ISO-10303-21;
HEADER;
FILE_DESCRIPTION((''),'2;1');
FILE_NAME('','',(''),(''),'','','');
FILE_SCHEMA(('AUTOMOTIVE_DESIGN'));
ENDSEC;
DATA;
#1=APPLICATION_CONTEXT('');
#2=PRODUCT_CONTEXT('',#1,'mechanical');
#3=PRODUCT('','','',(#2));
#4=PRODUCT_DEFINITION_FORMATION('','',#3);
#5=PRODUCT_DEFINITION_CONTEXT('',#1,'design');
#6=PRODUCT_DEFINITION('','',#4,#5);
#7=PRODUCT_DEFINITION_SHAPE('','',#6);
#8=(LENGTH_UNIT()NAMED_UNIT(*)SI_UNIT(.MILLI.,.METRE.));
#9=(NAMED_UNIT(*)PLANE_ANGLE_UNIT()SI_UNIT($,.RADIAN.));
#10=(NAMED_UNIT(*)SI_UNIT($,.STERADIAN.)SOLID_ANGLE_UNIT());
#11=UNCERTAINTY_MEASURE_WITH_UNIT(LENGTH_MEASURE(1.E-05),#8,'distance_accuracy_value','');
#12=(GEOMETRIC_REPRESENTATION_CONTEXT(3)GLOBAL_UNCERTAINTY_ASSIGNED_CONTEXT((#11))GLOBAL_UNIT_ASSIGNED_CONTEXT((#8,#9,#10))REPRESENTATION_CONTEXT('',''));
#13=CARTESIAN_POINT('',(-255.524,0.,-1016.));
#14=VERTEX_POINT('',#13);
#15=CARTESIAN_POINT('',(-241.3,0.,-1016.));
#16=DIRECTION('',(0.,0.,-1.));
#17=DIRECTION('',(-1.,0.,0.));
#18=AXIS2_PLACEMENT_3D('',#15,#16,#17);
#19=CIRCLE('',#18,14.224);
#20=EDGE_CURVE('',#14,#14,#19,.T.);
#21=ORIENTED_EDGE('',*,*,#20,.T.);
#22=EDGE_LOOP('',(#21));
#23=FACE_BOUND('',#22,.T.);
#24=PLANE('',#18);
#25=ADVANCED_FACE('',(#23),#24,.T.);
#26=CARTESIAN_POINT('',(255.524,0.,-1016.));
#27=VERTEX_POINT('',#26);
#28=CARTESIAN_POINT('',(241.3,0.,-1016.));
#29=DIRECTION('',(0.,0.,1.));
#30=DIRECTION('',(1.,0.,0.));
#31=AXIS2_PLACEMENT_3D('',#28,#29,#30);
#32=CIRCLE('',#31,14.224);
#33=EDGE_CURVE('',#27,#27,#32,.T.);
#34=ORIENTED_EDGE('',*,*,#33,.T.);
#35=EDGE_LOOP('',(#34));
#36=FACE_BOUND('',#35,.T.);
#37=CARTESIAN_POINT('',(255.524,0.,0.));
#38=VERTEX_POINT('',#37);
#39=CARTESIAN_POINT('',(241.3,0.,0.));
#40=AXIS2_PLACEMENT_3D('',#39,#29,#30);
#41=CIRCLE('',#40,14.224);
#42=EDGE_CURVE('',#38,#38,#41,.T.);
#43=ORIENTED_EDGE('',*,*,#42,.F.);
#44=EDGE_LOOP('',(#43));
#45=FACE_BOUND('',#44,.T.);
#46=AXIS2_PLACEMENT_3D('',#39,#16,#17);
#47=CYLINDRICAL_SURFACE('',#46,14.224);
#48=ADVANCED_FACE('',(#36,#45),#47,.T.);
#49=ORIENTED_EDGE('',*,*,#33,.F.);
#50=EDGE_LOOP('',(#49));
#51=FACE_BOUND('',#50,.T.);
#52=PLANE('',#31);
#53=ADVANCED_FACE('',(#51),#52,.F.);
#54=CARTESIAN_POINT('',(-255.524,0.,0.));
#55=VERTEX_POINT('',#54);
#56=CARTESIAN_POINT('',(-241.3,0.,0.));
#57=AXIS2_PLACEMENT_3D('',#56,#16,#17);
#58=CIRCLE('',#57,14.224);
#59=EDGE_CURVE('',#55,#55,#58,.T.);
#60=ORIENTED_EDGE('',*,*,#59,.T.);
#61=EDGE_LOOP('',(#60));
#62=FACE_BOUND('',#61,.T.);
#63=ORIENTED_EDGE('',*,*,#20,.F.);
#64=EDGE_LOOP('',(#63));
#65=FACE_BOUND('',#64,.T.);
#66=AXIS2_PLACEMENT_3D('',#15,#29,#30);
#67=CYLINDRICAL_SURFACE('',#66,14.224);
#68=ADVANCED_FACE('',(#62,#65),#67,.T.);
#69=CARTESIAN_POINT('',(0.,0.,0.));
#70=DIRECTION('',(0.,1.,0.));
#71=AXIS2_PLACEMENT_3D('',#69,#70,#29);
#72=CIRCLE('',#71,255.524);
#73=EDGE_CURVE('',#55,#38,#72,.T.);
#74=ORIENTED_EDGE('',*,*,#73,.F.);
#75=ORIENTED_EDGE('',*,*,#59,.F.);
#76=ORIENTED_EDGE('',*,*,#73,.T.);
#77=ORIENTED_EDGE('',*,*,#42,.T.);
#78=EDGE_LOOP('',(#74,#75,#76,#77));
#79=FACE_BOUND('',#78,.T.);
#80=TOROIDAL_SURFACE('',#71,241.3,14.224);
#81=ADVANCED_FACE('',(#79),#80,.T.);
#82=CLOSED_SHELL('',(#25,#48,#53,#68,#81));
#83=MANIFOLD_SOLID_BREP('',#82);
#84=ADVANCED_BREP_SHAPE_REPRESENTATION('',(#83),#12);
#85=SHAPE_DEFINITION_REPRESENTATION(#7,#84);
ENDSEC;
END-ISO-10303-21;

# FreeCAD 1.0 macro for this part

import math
import FreeCAD as App
import Part
import Sketcher

V = App.Vector
Q = App.Units.Quantity

doc = App.newDocument("Part")
params = doc.addObject("Spreadsheet::Sheet", "Params")
for row, (alias, value) in enumerate([
    ("sketch1_diameter", "1.12 in"),
    ("sketch2_radius", "9.5 in"),
    ("sketch2_height", "40 in"),
], start=1):
    params.set(f"A{row}", alias)
    params.set(f"B{row}", "=" + value)
    params.setAlias(f"B{row}", alias)

body = doc.addObject("PartDesign::Body", "Body")

# Sketch on XY plane
sketch1 = body.newObject("Sketcher::SketchObject", "Sketch")
sketch1.AttachmentSupport = (doc.getObject("XY_Plane"), [""])
sketch1.MapMode = "FlatFace"
sketch1.AttachmentOffset = App.Placement(V(0, 0, -40 * 25.4), App.Rotation())
sketch1.addGeometry(Part.Circle(V(-241.3, 0, 0), V(0, 0, 1), 14.224), False)
sketch1.addConstraint([
    Sketcher.Constraint("PointOnObject", 0, 3, -1),
    Sketcher.Constraint("Diameter", 0, Q("1.12 in")),
    Sketcher.Constraint("DistanceX", 0, 3, -1, 1, Q("9.5 in")),
])
sketch1.setExpression("Constraints[1]", "Params.sketch1_diameter")

# Sketch on XZ plane
sketch2 = body.newObject("Sketcher::SketchObject", "Sketch001")
sketch2.AttachmentSupport = (doc.getObject("XZ_Plane"), [""])
sketch2.MapMode = "FlatFace"
sketch2.addGeometry([
    Part.LineSegment(V(-241.3, -1016, 0), V(-241.3, 0, 0)),
    Part.ArcOfCircle(Part.Circle(V(0, 0, 0), V(0, 0, 1), 241.3), math.radians(0), math.radians(180)),
    Part.LineSegment(V(241.3, 0, 0), V(241.3, -1016, 0)),
], False)
sketch2.addConstraint([
    Sketcher.Constraint("Tangent", 0, 2, 1, 2),
    Sketcher.Constraint("Tangent", 1, 1, 2, 1),
    Sketcher.Constraint("Vertical", 0),
    Sketcher.Constraint("Vertical", 2),
    Sketcher.Constraint("Coincident", 1, 3, -1, 1),
    Sketcher.Constraint("Horizontal", 0, 1, 2, 2),
    Sketcher.Constraint("Radius", 1, Q("9.5 in")),
    Sketcher.Constraint("DistanceY", 0, 1, 0, 2, Q("40 in")),
])
sketch2.setExpression("Constraints[6]", "Params.sketch2_radius")
sketch2.setExpression("Constraints[7]", "Params.sketch2_height")
doc.recompute()

additivepipe = body.newObject("PartDesign::AdditivePipe", "AdditivePipe")
additivepipe.Profile = sketch1
additivepipe.Spine = (sketch2, ["Edge1", "Edge2", "Edge3"])

doc.recompute()
